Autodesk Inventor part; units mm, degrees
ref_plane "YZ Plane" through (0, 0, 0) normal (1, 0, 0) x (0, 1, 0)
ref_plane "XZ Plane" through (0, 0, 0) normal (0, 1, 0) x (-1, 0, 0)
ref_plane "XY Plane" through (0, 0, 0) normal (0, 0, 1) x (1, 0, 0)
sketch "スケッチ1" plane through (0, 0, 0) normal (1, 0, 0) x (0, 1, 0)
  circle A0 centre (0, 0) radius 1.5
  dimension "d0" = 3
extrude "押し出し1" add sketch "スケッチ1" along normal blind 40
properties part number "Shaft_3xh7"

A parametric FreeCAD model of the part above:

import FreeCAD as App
import Part
import Sketcher

V = App.Vector
Q = App.Units.Quantity

doc = App.newDocument("Part")
params = doc.addObject("Spreadsheet::Sheet", "Params")
for row, (alias, value) in enumerate([
    ("sketch1_diameter", "3 mm"),
    ("pad1_length", "40 mm"),
], start=1):
    params.set(f"A{row}", alias)
    params.set(f"B{row}", "=" + value)
    params.setAlias(f"B{row}", alias)

body = doc.addObject("PartDesign::Body", "Body")

sketch1 = doc.addObject("Sketcher::SketchObject", "Sketch")
body.addObject(sketch1)
sketch1.AttachmentSupport = (doc.YZ_Plane, [""])
sketch1.MapMode = "FlatFace"
sketch1.addGeometry(Part.Circle(V(0, 0, 0), V(0, 0, 1), 1.5), False)
sketch1.addConstraint(Sketcher.Constraint("Coincident", 0, 3, -1, 1))
sketch1.addConstraint(Sketcher.Constraint("Diameter", 0, Q("3 mm")))
sketch1.setExpression("Constraints[1]", "Params.sketch1_diameter")
pad1 = doc.addObject("PartDesign::Pad", "Pad")
body.addObject(pad1)
pad1.Profile = sketch1
pad1.setExpression("Length", "Params.pad1_length")

doc.recompute()
